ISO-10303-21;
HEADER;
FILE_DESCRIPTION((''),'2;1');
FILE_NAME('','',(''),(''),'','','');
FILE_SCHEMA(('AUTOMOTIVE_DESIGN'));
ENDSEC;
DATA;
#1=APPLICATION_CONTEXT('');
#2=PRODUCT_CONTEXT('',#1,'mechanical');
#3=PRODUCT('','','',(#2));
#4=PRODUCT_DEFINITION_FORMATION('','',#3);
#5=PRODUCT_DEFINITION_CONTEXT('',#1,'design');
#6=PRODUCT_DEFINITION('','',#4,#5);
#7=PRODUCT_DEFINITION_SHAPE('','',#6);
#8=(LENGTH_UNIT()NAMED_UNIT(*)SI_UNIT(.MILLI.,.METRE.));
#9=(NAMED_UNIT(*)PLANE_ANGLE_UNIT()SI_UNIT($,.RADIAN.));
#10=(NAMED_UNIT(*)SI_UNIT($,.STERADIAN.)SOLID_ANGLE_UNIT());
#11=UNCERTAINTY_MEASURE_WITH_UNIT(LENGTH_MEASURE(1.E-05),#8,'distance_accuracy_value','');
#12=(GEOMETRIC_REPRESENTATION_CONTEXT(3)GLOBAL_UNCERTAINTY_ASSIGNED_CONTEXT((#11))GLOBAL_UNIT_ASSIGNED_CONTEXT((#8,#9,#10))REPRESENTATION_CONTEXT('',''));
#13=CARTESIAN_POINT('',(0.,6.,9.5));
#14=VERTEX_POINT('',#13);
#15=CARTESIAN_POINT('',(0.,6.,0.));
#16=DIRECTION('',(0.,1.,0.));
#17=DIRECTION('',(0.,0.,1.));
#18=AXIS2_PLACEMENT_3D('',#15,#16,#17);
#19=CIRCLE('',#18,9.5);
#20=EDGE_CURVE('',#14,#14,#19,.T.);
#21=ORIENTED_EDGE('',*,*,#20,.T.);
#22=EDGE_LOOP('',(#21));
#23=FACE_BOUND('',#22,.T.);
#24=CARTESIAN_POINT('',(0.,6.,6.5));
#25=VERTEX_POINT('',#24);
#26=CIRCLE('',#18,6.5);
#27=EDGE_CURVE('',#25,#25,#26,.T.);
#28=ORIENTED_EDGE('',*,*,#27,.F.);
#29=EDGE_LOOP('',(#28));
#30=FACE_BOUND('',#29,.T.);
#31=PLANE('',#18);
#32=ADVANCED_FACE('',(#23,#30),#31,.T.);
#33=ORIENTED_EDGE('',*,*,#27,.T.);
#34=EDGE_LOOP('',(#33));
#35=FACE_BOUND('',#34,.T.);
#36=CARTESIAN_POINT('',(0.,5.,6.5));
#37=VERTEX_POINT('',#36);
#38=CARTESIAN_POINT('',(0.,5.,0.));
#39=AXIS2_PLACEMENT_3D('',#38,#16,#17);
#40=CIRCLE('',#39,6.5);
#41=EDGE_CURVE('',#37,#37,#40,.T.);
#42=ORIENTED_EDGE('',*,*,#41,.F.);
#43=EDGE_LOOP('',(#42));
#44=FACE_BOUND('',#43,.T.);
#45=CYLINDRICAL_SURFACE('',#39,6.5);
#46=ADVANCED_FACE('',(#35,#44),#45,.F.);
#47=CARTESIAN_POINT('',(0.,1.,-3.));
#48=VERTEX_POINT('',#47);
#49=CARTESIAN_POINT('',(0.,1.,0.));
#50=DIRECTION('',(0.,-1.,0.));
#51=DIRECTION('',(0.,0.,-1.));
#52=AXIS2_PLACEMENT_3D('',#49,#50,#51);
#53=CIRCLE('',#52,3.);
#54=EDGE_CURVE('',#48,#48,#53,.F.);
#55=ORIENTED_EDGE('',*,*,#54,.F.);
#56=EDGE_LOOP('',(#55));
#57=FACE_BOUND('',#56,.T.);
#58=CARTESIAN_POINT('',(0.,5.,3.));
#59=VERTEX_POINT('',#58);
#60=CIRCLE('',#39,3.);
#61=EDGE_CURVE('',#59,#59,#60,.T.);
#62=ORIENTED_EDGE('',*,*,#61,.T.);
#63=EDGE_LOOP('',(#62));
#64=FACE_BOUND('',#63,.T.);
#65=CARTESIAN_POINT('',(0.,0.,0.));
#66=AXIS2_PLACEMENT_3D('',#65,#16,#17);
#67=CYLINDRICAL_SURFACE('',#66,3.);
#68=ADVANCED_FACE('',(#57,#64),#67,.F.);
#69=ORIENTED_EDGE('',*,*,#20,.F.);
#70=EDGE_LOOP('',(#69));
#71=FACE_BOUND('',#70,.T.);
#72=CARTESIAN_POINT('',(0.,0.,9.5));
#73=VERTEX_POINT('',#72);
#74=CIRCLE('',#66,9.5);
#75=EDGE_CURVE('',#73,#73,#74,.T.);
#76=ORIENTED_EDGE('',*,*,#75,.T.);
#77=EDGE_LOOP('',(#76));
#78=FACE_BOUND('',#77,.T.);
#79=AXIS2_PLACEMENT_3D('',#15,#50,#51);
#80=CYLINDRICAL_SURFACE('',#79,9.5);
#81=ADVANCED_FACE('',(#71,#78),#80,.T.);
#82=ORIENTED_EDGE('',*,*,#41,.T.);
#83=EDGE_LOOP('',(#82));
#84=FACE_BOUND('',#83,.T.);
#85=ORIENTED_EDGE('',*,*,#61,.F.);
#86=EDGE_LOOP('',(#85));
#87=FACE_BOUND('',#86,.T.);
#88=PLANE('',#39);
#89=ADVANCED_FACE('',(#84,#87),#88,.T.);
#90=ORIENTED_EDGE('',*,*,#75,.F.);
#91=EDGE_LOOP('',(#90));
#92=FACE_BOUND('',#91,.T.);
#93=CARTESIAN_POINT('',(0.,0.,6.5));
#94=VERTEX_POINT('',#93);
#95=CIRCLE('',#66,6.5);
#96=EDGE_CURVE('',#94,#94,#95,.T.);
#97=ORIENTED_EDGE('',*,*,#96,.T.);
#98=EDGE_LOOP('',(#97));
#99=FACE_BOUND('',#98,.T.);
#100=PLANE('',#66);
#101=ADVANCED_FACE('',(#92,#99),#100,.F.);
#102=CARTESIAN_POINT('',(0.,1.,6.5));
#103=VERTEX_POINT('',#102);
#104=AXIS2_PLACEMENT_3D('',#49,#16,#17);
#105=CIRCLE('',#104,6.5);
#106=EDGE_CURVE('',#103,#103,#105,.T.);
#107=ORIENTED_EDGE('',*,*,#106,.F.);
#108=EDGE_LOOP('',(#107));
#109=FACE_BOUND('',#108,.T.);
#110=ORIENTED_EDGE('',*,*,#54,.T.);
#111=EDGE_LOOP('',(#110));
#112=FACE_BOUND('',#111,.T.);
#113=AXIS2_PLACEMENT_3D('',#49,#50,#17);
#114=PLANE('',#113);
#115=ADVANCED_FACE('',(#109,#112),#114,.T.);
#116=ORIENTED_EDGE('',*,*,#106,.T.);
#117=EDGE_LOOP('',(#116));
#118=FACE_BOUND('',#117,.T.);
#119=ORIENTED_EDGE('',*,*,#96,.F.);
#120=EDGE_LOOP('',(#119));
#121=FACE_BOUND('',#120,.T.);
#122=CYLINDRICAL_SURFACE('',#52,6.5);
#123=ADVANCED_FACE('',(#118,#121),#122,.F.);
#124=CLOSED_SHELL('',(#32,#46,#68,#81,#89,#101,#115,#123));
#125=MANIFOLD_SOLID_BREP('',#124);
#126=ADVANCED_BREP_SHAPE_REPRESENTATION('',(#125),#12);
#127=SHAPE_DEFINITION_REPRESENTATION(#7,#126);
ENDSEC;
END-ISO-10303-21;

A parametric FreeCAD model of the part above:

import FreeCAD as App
import Part
import Sketcher
Q = App.Units.Quantity

doc = App.newDocument("Part")
body = doc.addObject("PartDesign::Body", "Body")

sketch1 = body.newObject("Sketcher::SketchObject", "Sketch")
sketch1.AttachmentSupport = (doc.getObject("XZ_Plane"), [""])
sketch1.MapMode = "FlatFace"
sketch1.addGeometry(Part.Circle(App.Vector(0, 0, 0), App.Vector(0, 0, 1), 10), False)
sketch1.addConstraint([
    Sketcher.Constraint("Coincident", 0, 3, -1, 1),
    Sketcher.Constraint("Diameter", 0, Q("19 mm")),
])
pad1 = body.newObject("PartDesign::Pad", "Pad")
pad1.Profile = sketch1
pad1.Length = 6
pad1.Reversed = True

sketch2 = body.newObject("Sketcher::SketchObject", "Sketch001")
sketch2.AttachmentSupport = (doc.getObject("XZ_Plane"), [""])
sketch2.MapMode = "FlatFace"
sketch2.AttachmentOffset = App.Placement(App.Vector(0, 0, -6), App.Rotation())
sketch2.addGeometry(Part.Circle(App.Vector(0, 0, 0), App.Vector(0, 0, 1), 6), False)
sketch2.addConstraint([
    Sketcher.Constraint("Coincident", 0, 3, -1, 1),
    Sketcher.Constraint("Diameter", 0, Q("13 mm")),
])
pocket1 = body.newObject("PartDesign::Pocket", "Pocket")
pocket1.Profile = sketch2
pocket1.Length = 1
pocket1.Reversed = True

sketch3 = body.newObject("Sketcher::SketchObject", "Sketch002")
sketch3.AttachmentSupport = (doc.getObject("XZ_Plane"), [""])
sketch3.MapMode = "FlatFace"
sketch3.AttachmentOffset = App.Placement(App.Vector(0, 0, -5), App.Rotation())
sketch3.addGeometry(Part.Circle(App.Vector(0, 0, 0), App.Vector(0, 0, 1), 3), False)
sketch3.addConstraint([
    Sketcher.Constraint("Coincident", 0, 3, -1, 1),
    Sketcher.Constraint("Diameter", 0, Q("6 mm")),
])
pocket2 = body.newObject("PartDesign::Pocket", "Pocket001")
pocket2.Profile = sketch3
pocket2.Type = "ThroughAll"
pocket2.Reversed = True
doc.recompute()

datumplane = body.newObject("PartDesign::Plane", "DatumPlane")
datumplane.AttachmentSupport = (doc.getObject("XZ_Plane"), [""])
datumplane.MapMode = "FlatFace"
datumplane.AttachmentOffset = App.Placement(App.Vector(0, 0, -3), App.Rotation())
mirrored = body.newObject("PartDesign::Mirrored", "Mirrored")
mirrored.Originals = [pocket1]
mirrored.MirrorPlane = (datumplane, [""])
body.Tip = mirrored

doc.recompute()
